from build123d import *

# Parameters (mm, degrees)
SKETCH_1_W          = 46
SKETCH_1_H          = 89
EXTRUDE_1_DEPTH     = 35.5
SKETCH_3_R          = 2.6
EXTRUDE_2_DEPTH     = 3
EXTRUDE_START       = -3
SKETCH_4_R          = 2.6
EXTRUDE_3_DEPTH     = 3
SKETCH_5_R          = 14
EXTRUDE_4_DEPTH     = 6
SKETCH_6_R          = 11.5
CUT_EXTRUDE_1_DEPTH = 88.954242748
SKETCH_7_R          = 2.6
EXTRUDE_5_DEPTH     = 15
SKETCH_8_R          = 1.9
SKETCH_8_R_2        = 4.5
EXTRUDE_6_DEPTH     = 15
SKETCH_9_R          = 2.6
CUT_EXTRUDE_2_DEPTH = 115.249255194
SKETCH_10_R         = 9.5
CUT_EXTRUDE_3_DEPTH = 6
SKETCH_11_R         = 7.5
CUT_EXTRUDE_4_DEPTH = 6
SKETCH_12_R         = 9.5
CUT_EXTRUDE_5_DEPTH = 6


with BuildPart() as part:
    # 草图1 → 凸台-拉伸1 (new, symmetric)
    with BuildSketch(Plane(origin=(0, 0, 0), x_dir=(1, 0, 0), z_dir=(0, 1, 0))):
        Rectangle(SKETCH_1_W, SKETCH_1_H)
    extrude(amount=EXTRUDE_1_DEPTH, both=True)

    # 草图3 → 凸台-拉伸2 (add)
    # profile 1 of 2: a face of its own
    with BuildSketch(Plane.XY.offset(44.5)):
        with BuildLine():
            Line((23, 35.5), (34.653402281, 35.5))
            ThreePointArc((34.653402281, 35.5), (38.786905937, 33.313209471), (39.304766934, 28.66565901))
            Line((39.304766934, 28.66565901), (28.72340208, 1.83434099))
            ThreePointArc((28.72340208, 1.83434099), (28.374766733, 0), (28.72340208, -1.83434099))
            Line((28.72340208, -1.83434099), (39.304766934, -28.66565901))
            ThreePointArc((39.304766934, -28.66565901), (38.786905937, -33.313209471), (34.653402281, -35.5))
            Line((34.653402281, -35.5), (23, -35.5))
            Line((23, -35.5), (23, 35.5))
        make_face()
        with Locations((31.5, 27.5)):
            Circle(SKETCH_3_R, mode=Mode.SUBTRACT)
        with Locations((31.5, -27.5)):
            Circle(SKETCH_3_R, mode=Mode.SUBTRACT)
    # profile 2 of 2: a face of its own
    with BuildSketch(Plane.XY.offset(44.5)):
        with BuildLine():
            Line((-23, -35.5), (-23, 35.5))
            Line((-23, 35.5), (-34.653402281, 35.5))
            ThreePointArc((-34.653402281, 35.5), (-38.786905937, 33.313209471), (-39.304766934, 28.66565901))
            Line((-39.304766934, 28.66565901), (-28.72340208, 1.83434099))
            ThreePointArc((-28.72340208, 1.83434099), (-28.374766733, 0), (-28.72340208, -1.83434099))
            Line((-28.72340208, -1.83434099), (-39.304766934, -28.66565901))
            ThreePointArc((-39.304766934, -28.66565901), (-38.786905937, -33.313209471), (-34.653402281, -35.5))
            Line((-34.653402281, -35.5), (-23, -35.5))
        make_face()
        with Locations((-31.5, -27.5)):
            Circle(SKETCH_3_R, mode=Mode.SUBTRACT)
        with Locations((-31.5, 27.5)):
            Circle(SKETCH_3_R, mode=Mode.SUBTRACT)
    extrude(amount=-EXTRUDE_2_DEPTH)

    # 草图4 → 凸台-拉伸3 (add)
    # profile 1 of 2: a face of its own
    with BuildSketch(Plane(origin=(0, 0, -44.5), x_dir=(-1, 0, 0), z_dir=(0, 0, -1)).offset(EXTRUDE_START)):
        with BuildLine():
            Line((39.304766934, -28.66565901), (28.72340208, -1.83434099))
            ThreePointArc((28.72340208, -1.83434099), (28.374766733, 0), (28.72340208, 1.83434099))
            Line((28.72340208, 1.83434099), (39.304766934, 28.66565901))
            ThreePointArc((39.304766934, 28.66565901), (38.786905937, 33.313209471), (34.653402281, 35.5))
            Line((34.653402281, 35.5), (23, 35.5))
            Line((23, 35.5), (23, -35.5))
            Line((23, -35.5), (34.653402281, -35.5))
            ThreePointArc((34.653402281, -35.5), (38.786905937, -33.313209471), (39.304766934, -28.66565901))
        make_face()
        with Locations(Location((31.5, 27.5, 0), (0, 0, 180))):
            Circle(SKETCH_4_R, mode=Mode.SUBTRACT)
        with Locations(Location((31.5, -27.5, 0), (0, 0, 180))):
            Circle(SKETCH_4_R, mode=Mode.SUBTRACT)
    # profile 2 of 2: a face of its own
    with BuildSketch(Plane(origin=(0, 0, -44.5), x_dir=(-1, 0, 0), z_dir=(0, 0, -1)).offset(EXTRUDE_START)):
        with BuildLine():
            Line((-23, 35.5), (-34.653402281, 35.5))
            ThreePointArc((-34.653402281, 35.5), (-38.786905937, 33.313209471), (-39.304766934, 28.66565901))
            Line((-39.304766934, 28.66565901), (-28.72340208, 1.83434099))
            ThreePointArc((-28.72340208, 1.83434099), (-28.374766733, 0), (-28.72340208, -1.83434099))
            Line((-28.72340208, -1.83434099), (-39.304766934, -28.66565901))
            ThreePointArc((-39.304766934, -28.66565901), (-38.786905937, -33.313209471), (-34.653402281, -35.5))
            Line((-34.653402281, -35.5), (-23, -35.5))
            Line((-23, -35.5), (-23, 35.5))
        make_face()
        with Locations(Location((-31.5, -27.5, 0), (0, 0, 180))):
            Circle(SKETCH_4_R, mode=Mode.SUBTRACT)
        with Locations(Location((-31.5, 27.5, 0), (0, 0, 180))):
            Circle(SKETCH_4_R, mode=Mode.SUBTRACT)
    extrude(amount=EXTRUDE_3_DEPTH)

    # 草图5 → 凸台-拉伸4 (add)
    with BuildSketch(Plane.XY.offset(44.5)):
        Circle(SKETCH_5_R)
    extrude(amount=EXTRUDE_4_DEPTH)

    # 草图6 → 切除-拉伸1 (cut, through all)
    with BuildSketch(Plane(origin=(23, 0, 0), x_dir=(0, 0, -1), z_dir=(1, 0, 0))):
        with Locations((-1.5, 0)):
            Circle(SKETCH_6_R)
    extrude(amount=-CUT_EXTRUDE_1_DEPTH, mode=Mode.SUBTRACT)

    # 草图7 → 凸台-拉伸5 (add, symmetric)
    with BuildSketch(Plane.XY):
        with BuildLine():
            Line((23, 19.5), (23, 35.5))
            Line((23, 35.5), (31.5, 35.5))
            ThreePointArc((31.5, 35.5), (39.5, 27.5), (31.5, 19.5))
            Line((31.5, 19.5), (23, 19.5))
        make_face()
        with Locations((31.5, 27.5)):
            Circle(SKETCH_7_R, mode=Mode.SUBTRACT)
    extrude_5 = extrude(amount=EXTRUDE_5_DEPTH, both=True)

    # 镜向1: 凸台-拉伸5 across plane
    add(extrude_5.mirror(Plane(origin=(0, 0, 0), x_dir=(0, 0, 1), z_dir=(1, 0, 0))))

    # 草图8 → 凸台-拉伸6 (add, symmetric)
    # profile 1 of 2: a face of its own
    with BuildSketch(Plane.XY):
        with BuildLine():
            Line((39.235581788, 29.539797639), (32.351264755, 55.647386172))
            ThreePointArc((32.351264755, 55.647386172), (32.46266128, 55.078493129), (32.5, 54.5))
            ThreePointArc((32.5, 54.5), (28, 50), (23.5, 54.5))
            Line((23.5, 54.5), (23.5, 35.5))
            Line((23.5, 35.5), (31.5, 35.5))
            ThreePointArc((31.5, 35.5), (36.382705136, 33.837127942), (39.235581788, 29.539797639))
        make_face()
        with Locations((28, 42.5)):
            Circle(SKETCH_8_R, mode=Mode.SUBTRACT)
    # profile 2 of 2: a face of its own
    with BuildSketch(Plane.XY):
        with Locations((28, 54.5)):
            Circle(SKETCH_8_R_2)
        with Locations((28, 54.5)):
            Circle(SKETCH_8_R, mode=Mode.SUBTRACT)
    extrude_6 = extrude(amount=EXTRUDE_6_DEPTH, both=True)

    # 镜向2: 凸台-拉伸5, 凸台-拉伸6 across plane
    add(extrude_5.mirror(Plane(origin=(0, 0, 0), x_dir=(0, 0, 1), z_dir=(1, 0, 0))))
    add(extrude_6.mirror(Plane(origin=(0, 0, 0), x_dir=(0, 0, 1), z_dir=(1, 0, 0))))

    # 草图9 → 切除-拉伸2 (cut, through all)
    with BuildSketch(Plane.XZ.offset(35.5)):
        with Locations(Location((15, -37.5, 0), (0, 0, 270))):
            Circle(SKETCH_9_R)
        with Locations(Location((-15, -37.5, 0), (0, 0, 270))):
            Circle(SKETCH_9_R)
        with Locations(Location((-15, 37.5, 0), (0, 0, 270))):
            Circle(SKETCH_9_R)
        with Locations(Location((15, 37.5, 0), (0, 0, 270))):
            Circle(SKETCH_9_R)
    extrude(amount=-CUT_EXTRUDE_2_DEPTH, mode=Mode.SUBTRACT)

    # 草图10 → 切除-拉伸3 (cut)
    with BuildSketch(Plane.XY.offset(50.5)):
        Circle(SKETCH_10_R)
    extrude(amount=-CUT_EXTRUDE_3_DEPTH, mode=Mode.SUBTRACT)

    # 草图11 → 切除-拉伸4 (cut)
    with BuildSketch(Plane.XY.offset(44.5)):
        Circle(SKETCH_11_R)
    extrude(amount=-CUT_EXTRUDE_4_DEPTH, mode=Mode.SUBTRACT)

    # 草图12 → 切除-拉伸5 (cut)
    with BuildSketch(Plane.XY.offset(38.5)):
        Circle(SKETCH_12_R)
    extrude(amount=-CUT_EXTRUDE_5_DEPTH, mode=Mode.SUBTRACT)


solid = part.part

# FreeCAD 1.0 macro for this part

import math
import FreeCAD as App
import Part
import Sketcher

V = App.Vector
Q = App.Units.Quantity

doc = App.newDocument("Part")
params = doc.addObject("Spreadsheet::Sheet", "Params")
for row, (alias, value) in enumerate([
    ("sketch1_width", "46 mm"),
    ("sketch1_height", "89 mm"),
    ("pad1_length", "71 mm"),
    ("sketch2_radius", "5 mm"),
    ("sketch2_diameter", "5.2 mm"),
    ("sketch2_height", "71 mm"),
    ("pad2_length", "3 mm"),
    ("sketch3_radius", "5 mm"),
    ("sketch3_diameter", "5.2 mm"),
    ("sketch3_height", "71 mm"),
    ("pad3_length", "3 mm"),
    ("sketch4_diameter", "28 mm"),
    ("pad4_length", "6 mm"),
    ("sketch5_diameter", "23 mm"),
    ("sketch6_radius", "8 mm"),
    ("sketch6_diameter", "5.2 mm"),
    ("sketch6_width", "8.5 mm"),
    ("pad5_length", "30 mm"),
    ("sketch7_radius", "8 mm"),
    ("sketch7_diameter", "3.8 mm"),
    ("sketch7_radius2", "4.5 mm"),
    ("sketch7_width", "8 mm"),
    ("sketch7_height", "19 mm"),
    ("pad6_length", "30 mm"),
    ("sketch8_diameter", "5.2 mm"),
    ("sketch9_diameter", "19 mm"),
    ("pocket3_length", "6 mm"),
    ("sketch10_diameter", "15 mm"),
    ("pocket4_length", "6 mm"),
    ("sketch11_diameter", "19 mm"),
    ("pocket5_length", "6 mm"),
], start=1):
    params.set(f"A{row}", alias)
    params.set(f"B{row}", "=" + value)
    params.setAlias(f"B{row}", alias)

body = doc.addObject("PartDesign::Body", "Body")

sketch1 = doc.addObject("Sketcher::SketchObject", "Sketch")
body.addObject(sketch1)
sketch1.AttachmentSupport = (doc.XZ_Plane, [""])
sketch1.MapMode = "FlatFace"
sketch1.addGeometry(Part.LineSegment(V(-23, -44, 0), V(-23, 44, 0)), False)
sketch1.addGeometry(Part.LineSegment(V(-23, 44, 0), V(23, 44, 0)), False)
sketch1.addGeometry(Part.LineSegment(V(23, 44, 0), V(23, -44, 0)), False)
sketch1.addGeometry(Part.LineSegment(V(23, -44, 0), V(-23, -44, 0)), False)
sketch1.addConstraint(Sketcher.Constraint("Coincident", 0, 2, 1, 1))
sketch1.addConstraint(Sketcher.Constraint("Coincident", 1, 2, 2, 1))
sketch1.addConstraint(Sketcher.Constraint("Coincident", 2, 2, 3, 1))
sketch1.addConstraint(Sketcher.Constraint("Coincident", 3, 2, 0, 1))
sketch1.addConstraint(Sketcher.Constraint("Vertical", 0))
sketch1.addConstraint(Sketcher.Constraint("Horizontal", 1))
sketch1.addConstraint(Sketcher.Constraint("Vertical", 2))
sketch1.addConstraint(Sketcher.Constraint("Horizontal", 3))
sketch1.addConstraint(Sketcher.Constraint("Symmetric", 0, 2, 2, 2, -1, 1))
sketch1.addConstraint(Sketcher.Constraint("DistanceX", 1, 1, 1, 2, Q("46 mm")))
sketch1.addConstraint(Sketcher.Constraint("DistanceY", 0, 1, 0, 2, Q("89 mm")))
sketch1.setExpression("Constraints[9]", "Params.sketch1_width")
sketch1.setExpression("Constraints[10]", "Params.sketch1_height")
pad1 = doc.addObject("PartDesign::Pad", "Pad")
body.addObject(pad1)
pad1.Profile = sketch1
pad1.setExpression("Length", "Params.pad1_length")
pad1.Midplane = True

sketch2 = doc.addObject("Sketcher::SketchObject", "Sketch001")
body.addObject(sketch2)
sketch2.AttachmentSupport = (doc.XY_Plane, [""])
sketch2.MapMode = "FlatFace"
sketch2.AttachmentOffset = App.Placement(V(0, 0, 44.5), App.Rotation())
sketch2.addGeometry(Part.LineSegment(V(34.7, 35.5, 0), V(23, 35.5, 0)), False)
sketch2.addGeometry(Part.LineSegment(V(23, 35.5, 0), V(23, -35.5, 0)), False)
sketch2.addGeometry(Part.LineSegment(V(23, -35.5, 0), V(34.7, -35.5, 0)), False)
sketch2.addGeometry(Part.ArcOfCircle(Part.Circle(V(34.7, -30.5, 0), V(0, 0, 1), 5), math.radians(-90), math.radians(22)), False)
sketch2.addGeometry(Part.LineSegment(V(39.3, -28.7, 0), V(28.7, -1.8, 0)), False)
sketch2.addGeometry(Part.ArcOfCircle(Part.Circle(V(33.4, 0, 0), V(0, 0, 1), 5), math.radians(158), math.radians(202)), False)
sketch2.addGeometry(Part.LineSegment(V(28.7, 1.8, 0), V(39.3, 28.7, 0)), False)
sketch2.addGeometry(Part.ArcOfCircle(Part.Circle(V(34.7, 30.5, 0), V(0, 0, 1), 5), math.radians(-22), math.radians(90)), False)
sketch2.addGeometry(Part.Circle(V(31.5, -27.5, 0), V(0, 0, 1), 2.6), False)
sketch2.addGeometry(Part.Circle(V(31.5, 27.5, 0), V(0, 0, 1), 2.6), False)
sketch2.addGeometry(Part.LineSegment(V(-23, -35.5, 0), V(-23, 35.5, 0)), False)
sketch2.addGeometry(Part.LineSegment(V(-23, 35.5, 0), V(-34.7, 35.5, 0)), False)
sketch2.addGeometry(Part.ArcOfCircle(Part.Circle(V(-34.7, 30.5, 0), V(0, 0, 1), 5), math.radians(90), math.radians(202)), False)
sketch2.addGeometry(Part.LineSegment(V(-39.3, 28.7, 0), V(-28.7, 1.8, 0)), False)
sketch2.addGeometry(Part.ArcOfCircle(Part.Circle(V(-33.4, 0, 0), V(0, 0, 1), 5), math.radians(-22), math.radians(22)), False)
sketch2.addGeometry(Part.LineSegment(V(-28.7, -1.8, 0), V(-39.3, -28.7, 0)), False)
sketch2.addGeometry(Part.ArcOfCircle(Part.Circle(V(-34.7, -30.5, 0), V(0, 0, 1), 5), math.radians(158), math.radians(270)), False)
sketch2.addGeometry(Part.LineSegment(V(-34.7, -35.5, 0), V(-23, -35.5, 0)), False)
sketch2.addGeometry(Part.Circle(V(-31.5, -27.5, 0), V(0, 0, 1), 2.6), False)
sketch2.addGeometry(Part.Circle(V(-31.5, 27.5, 0), V(0, 0, 1), 2.6), False)
sketch2.addConstraint(Sketcher.Constraint("Coincident", 0, 2, 1, 1))
sketch2.addConstraint(Sketcher.Constraint("Coincident", 1, 2, 2, 1))
sketch2.addConstraint(Sketcher.Constraint("Tangent", 2, 2, 3, 1))
sketch2.addConstraint(Sketcher.Constraint("Tangent", 3, 2, 4, 1))
sketch2.addConstraint(Sketcher.Constraint("Tangent", 4, 2, 5, 2))
sketch2.addConstraint(Sketcher.Constraint("Tangent", 5, 1, 6, 1))
sketch2.addConstraint(Sketcher.Constraint("Tangent", 6, 2, 7, 1))
sketch2.addConstraint(Sketcher.Constraint("Tangent", 7, 2, 0, 1))
sketch2.addConstraint(Sketcher.Constraint("Coincident", 10, 2, 11, 1))
sketch2.addConstraint(Sketcher.Constraint("Tangent", 11, 2, 12, 1))
sketch2.addConstraint(Sketcher.Constraint("Tangent", 12, 2, 13, 1))
sketch2.addConstraint(Sketcher.Constraint("Tangent", 13, 2, 14, 2))
sketch2.addConstraint(Sketcher.Constraint("Tangent", 14, 1, 15, 1))
sketch2.addConstraint(Sketcher.Constraint("Tangent", 15, 2, 16, 1))
sketch2.addConstraint(Sketcher.Constraint("Tangent", 16, 2, 17, 1))
sketch2.addConstraint(Sketcher.Constraint("Coincident", 17, 2, 10, 1))
sketch2.addConstraint(Sketcher.Constraint("Horizontal", 0))
sketch2.addConstraint(Sketcher.Constraint("Vertical", 1))
sketch2.addConstraint(Sketcher.Constraint("Horizontal", 2))
sketch2.addConstraint(Sketcher.Constraint("Vertical", 10))
sketch2.addConstraint(Sketcher.Constraint("Horizontal", 11))
sketch2.addConstraint(Sketcher.Constraint("Horizontal", 17))
sketch2.addConstraint(Sketcher.Constraint("Equal", 3, 5))
sketch2.addConstraint(Sketcher.Constraint("Equal", 5, 7))
sketch2.addConstraint(Sketcher.Constraint("Equal", 8, 9))
sketch2.addConstraint(Sketcher.Constraint("Equal", 7, 12))
sketch2.addConstraint(Sketcher.Constraint("Equal", 12, 14))
sketch2.addConstraint(Sketcher.Constraint("Equal", 14, 16))
sketch2.addConstraint(Sketcher.Constraint("Equal", 9, 18))
sketch2.addConstraint(Sketcher.Constraint("Equal", 18, 19))
sketch2.addConstraint(Sketcher.Constraint("Symmetric", 3, 3, 12, 3, -1, 1))
sketch2.addConstraint(Sketcher.Constraint("Symmetric", 5, 3, 14, 3, -1, 1))
sketch2.addConstraint(Sketcher.Constraint("Symmetric", 7, 3, 16, 3, -1, 1))
sketch2.addConstraint(Sketcher.Constraint("Symmetric", 9, 3, 18, 3, -1, 1))
sketch2.addConstraint(Sketcher.Constraint("Symmetric", 8, 3, 19, 3, -1, 1))
sketch2.addConstraint(Sketcher.Constraint("Symmetric", 7, 3, 12, 3, -2))
sketch2.addConstraint(Sketcher.Constraint("Symmetric", 8, 3, 18, 3, -2))
sketch2.addConstraint(Sketcher.Constraint("PointOnObject", 5, 3, -1))
sketch2.addConstraint(Sketcher.Constraint("Equal", 2, 11))
sketch2.addConstraint(Sketcher.Constraint("Radius", 3, Q("5 mm")))
sketch2.addConstraint(Sketcher.Constraint("Diameter", 8, Q("5.2 mm")))
sketch2.addConstraint(Sketcher.Constraint("DistanceY", 1, 2, 1, 1, Q("71 mm")))
sketch2.addConstraint(Sketcher.Constraint("DistanceX", -1, 1, 0, 2, Q("23 mm")))
sketch2.addConstraint(Sketcher.Constraint("DistanceY", 3, 3, 8, 3, Q("3 mm")))
sketch2.addConstraint(Sketcher.Constraint("DistanceX", 18, 3, 8, 3, Q("63 mm")))
sketch2.addConstraint(Sketcher.Constraint("DistanceX", 5, 3, 3, 2, Q("5.93 mm")))
sketch2.addConstraint(Sketcher.Constraint("DistanceX", 0, 2, 0, 1, Q("11.653402 mm")))
sketch2.setExpression("Constraints[39]", "Params.sketch2_radius")
sketch2.setExpression("Constraints[40]", "Params.sketch2_diameter")
sketch2.setExpression("Constraints[41]", "Params.sketch2_height")
pad2 = doc.addObject("PartDesign::Pad", "Pad001")
body.addObject(pad2)
pad2.Profile = sketch2
pad2.setExpression("Length", "Params.pad2_length")
pad2.Reversed = True

sketch3 = doc.addObject("Sketcher::SketchObject", "Sketch002")
body.addObject(sketch3)
sketch3.AttachmentSupport = (doc.XY_Plane, [""])
sketch3.MapMode = "FlatFace"
sketch3.AttachmentOffset = App.Placement(V(0, 0, -41.5), App.Rotation())
sketch3.addGeometry(Part.LineSegment(V(-39.3, -28.7, 0), V(-28.7, -1.8, 0)), False)
sketch3.addGeometry(Part.ArcOfCircle(Part.Circle(V(-33.4, 0, 0), V(0, 0, 1), 5), math.radians(-22), math.radians(22)), False)
sketch3.addGeometry(Part.LineSegment(V(-28.7, 1.8, 0), V(-39.3, 28.7, 0)), False)
sketch3.addGeometry(Part.ArcOfCircle(Part.Circle(V(-34.7, 30.5, 0), V(0, 0, 1), 5), math.radians(90), math.radians(202)), False)
sketch3.addGeometry(Part.LineSegment(V(-34.7, 35.5, 0), V(-23, 35.5, 0)), False)
sketch3.addGeometry(Part.LineSegment(V(-23, 35.5, 0), V(-23, -35.5, 0)), False)
sketch3.addGeometry(Part.LineSegment(V(-23, -35.5, 0), V(-34.7, -35.5, 0)), False)
sketch3.addGeometry(Part.ArcOfCircle(Part.Circle(V(-34.7, -30.5, 0), V(0, 0, 1), 5), math.radians(158), math.radians(270)), False)
sketch3.addGeometry(Part.Circle(V(-31.5, -27.5, 0), V(0, 0, 1), 2.6), False)
sketch3.addGeometry(Part.Circle(V(-31.5, 27.5, 0), V(0, 0, 1), 2.6), False)
sketch3.addGeometry(Part.LineSegment(V(23, 35.5, 0), V(34.7, 35.5, 0)), False)
sketch3.addGeometry(Part.ArcOfCircle(Part.Circle(V(34.7, 30.5, 0), V(0, 0, 1), 5), math.radians(-22), math.radians(90)), False)
sketch3.addGeometry(Part.LineSegment(V(39.3, 28.7, 0), V(28.7, 1.8, 0)), False)
sketch3.addGeometry(Part.ArcOfCircle(Part.Circle(V(33.4, 0, 0), V(0, 0, 1), 5), math.radians(158), math.radians(202)), False)
sketch3.addGeometry(Part.LineSegment(V(28.7, -1.8, 0), V(39.3, -28.7, 0)), False)
sketch3.addGeometry(Part.ArcOfCircle(Part.Circle(V(34.7, -30.5, 0), V(0, 0, 1), 5), math.radians(-90), math.radians(22)), False)
sketch3.addGeometry(Part.LineSegment(V(34.7, -35.5, 0), V(23, -35.5, 0)), False)
sketch3.addGeometry(Part.LineSegment(V(23, -35.5, 0), V(23, 35.5, 0)), False)
sketch3.addGeometry(Part.Circle(V(31.5, -27.5, 0), V(0, 0, 1), 2.6), False)
sketch3.addGeometry(Part.Circle(V(31.5, 27.5, 0), V(0, 0, 1), 2.6), False)
sketch3.addConstraint(Sketcher.Constraint("Tangent", 0, 2, 1, 1))
sketch3.addConstraint(Sketcher.Constraint("Tangent", 1, 2, 2, 1))
sketch3.addConstraint(Sketcher.Constraint("Tangent", 2, 2, 3, 2))
sketch3.addConstraint(Sketcher.Constraint("Tangent", 3, 1, 4, 1))
sketch3.addConstraint(Sketcher.Constraint("Coincident", 4, 2, 5, 1))
sketch3.addConstraint(Sketcher.Constraint("Coincident", 5, 2, 6, 1))
sketch3.addConstraint(Sketcher.Constraint("Tangent", 6, 2, 7, 2))
sketch3.addConstraint(Sketcher.Constraint("Tangent", 7, 1, 0, 1))
sketch3.addConstraint(Sketcher.Constraint("Tangent", 10, 2, 11, 2))
sketch3.addConstraint(Sketcher.Constraint("Tangent", 11, 1, 12, 1))
sketch3.addConstraint(Sketcher.Constraint("Tangent", 12, 2, 13, 1))
sketch3.addConstraint(Sketcher.Constraint("Tangent", 13, 2, 14, 1))
sketch3.addConstraint(Sketcher.Constraint("Tangent", 14, 2, 15, 2))
sketch3.addConstraint(Sketcher.Constraint("Tangent", 15, 1, 16, 1))
sketch3.addConstraint(Sketcher.Constraint("Coincident", 16, 2, 17, 1))
sketch3.addConstraint(Sketcher.Constraint("Coincident", 17, 2, 10, 1))
sketch3.addConstraint(Sketcher.Constraint("Horizontal", 4))
sketch3.addConstraint(Sketcher.Constraint("Vertical", 5))
sketch3.addConstraint(Sketcher.Constraint("Horizontal", 6))
sketch3.addConstraint(Sketcher.Constraint("Horizontal", 10))
sketch3.addConstraint(Sketcher.Constraint("Horizontal", 16))
sketch3.addConstraint(Sketcher.Constraint("Vertical", 17))
sketch3.addConstraint(Sketcher.Constraint("Equal", 1, 3))
sketch3.addConstraint(Sketcher.Constraint("Equal", 3, 7))
sketch3.addConstraint(Sketcher.Constraint("Equal", 8, 9))
sketch3.addConstraint(Sketcher.Constraint("Equal", 7, 11))
sketch3.addConstraint(Sketcher.Constraint("Equal", 11, 13))
sketch3.addConstraint(Sketcher.Constraint("Equal", 13, 15))
sketch3.addConstraint(Sketcher.Constraint("Equal", 9, 18))
sketch3.addConstraint(Sketcher.Constraint("Equal", 18, 19))
sketch3.addConstraint(Sketcher.Constraint("Symmetric", 7, 3, 11, 3, -1, 1))
sketch3.addConstraint(Sketcher.Constraint("Symmetric", 1, 3, 13, 3, -1, 1))
sketch3.addConstraint(Sketcher.Constraint("Symmetric", 3, 3, 15, 3, -1, 1))
sketch3.addConstraint(Sketcher.Constraint("Symmetric", 9, 3, 18, 3, -1, 1))
sketch3.addConstraint(Sketcher.Constraint("Symmetric", 8, 3, 19, 3, -1, 1))
sketch3.addConstraint(Sketcher.Constraint("Symmetric", 3, 3, 11, 3, -2))
sketch3.addConstraint(Sketcher.Constraint("Symmetric", 8, 3, 18, 3, -2))
sketch3.addConstraint(Sketcher.Constraint("PointOnObject", 1, 3, -1))
sketch3.addConstraint(Sketcher.Constraint("Equal", 6, 10))
sketch3.addConstraint(Sketcher.Constraint("Radius", 1, Q("5 mm")))
sketch3.addConstraint(Sketcher.Constraint("Diameter", 8, Q("5.2 mm")))
sketch3.addConstraint(Sketcher.Constraint("DistanceY", 5, 2, 5, 1, Q("71 mm")))
sketch3.addConstraint(Sketcher.Constraint("DistanceX", 4, 2, -1, 1, Q("23 mm")))
sketch3.addConstraint(Sketcher.Constraint("DistanceY", 7, 3, 8, 3, Q("3 mm")))
sketch3.addConstraint(Sketcher.Constraint("DistanceX", 8, 3, 18, 3, Q("63 mm")))
sketch3.addConstraint(Sketcher.Constraint("DistanceX", 7, 3, 0, 2, Q("5.93 mm")))
sketch3.addConstraint(Sketcher.Constraint("DistanceX", 4, 1, 4, 2, Q("11.653402 mm")))
sketch3.setExpression("Constraints[39]", "Params.sketch3_radius")
sketch3.setExpression("Constraints[40]", "Params.sketch3_diameter")
sketch3.setExpression("Constraints[41]", "Params.sketch3_height")
pad3 = doc.addObject("PartDesign::Pad", "Pad002")
body.addObject(pad3)
pad3.Profile = sketch3
pad3.setExpression("Length", "Params.pad3_length")
pad3.Reversed = True

sketch4 = doc.addObject("Sketcher::SketchObject", "Sketch003")
body.addObject(sketch4)
sketch4.AttachmentSupport = (doc.XY_Plane, [""])
sketch4.MapMode = "FlatFace"
sketch4.AttachmentOffset = App.Placement(V(0, 0, 44.5), App.Rotation())
sketch4.addGeometry(Part.Circle(V(0, 0, 0), V(0, 0, 1), 14), False)
sketch4.addConstraint(Sketcher.Constraint("Coincident", 0, 3, -1, 1))
sketch4.addConstraint(Sketcher.Constraint("Diameter", 0, Q("28 mm")))
sketch4.setExpression("Constraints[1]", "Params.sketch4_diameter")
pad4 = doc.addObject("PartDesign::Pad", "Pad003")
body.addObject(pad4)
pad4.Profile = sketch4
pad4.setExpression("Length", "Params.pad4_length")

sketch5 = doc.addObject("Sketcher::SketchObject", "Sketch004")
body.addObject(sketch5)
sketch5.AttachmentSupport = (doc.YZ_Plane, [""])
sketch5.MapMode = "FlatFace"
sketch5.AttachmentOffset = App.Placement(V(0, 0, 23), App.Rotation())
sketch5.addGeometry(Part.Circle(V(0, 2, 0), V(0, 0, 1), 12), False)
sketch5.addConstraint(Sketcher.Constraint("PointOnObject", 0, 3, -2))
sketch5.addConstraint(Sketcher.Constraint("Diameter", 0, Q("23 mm")))
sketch5.addConstraint(Sketcher.Constraint("DistanceY", -1, 1, 0, 3, Q("1.5 mm")))
sketch5.setExpression("Constraints[1]", "Params.sketch5_diameter")
pocket1 = doc.addObject("PartDesign::Pocket", "Pocket")
body.addObject(pocket1)
pocket1.Profile = sketch5
pocket1.Type = "ThroughAll"

sketch6 = doc.addObject("Sketcher::SketchObject", "Sketch005")
body.addObject(sketch6)
sketch6.AttachmentSupport = (doc.XY_Plane, [""])
sketch6.MapMode = "FlatFace"
sketch6.addGeometry(Part.LineSegment(V(23, 35.5, 0), V(23, 19.5, 0)), False)
sketch6.addGeometry(Part.LineSegment(V(23, 19.5, 0), V(31.5, 19.5, 0)), False)
sketch6.addGeometry(Part.ArcOfCircle(Part.Circle(V(31.5, 27.5, 0), V(0, 0, 1), 8), math.radians(-90), math.radians(90)), False)
sketch6.addGeometry(Part.LineSegment(V(31.5, 35.5, 0), V(23, 35.5, 0)), False)
sketch6.addGeometry(Part.Circle(V(31.5, 27.5, 0), V(0, 0, 1), 2.6), False)
sketch6.addConstraint(Sketcher.Constraint("Coincident", 0, 2, 1, 1))
sketch6.addConstraint(Sketcher.Constraint("Tangent", 1, 2, 2, 1))
sketch6.addConstraint(Sketcher.Constraint("Tangent", 2, 2, 3, 1))
sketch6.addConstraint(Sketcher.Constraint("Coincident", 3, 2, 0, 1))
sketch6.addConstraint(Sketcher.Constraint("Vertical", 0))
sketch6.addConstraint(Sketcher.Constraint("Horizontal", 1))
sketch6.addConstraint(Sketcher.Constraint("Horizontal", 3))
sketch6.addConstraint(Sketcher.Constraint("Coincident", 4, 3, 2, 3))
sketch6.addConstraint(Sketcher.Constraint("Radius", 2, Q("8 mm")))
sketch6.addConstraint(Sketcher.Constraint("Diameter", 4, Q("5.2 mm")))
sketch6.addConstraint(Sketcher.Constraint("DistanceX", 1, 1, 1, 2, Q("8.5 mm")))
sketch6.addConstraint(Sketcher.Constraint("DistanceX", -1, 1, 0, 2, Q("23 mm")))
sketch6.addConstraint(Sketcher.Constraint("DistanceY", -1, 1, 2, 3, Q("27.5 mm")))
sketch6.setExpression("Constraints[8]", "Params.sketch6_radius")
sketch6.setExpression("Constraints[9]", "Params.sketch6_diameter")
sketch6.setExpression("Constraints[10]", "Params.sketch6_width")
pad5 = doc.addObject("PartDesign::Pad", "Pad004")
body.addObject(pad5)
pad5.Profile = sketch6
pad5.setExpression("Length", "Params.pad5_length")
pad5.Midplane = True
doc.recompute()

mirrored = doc.addObject("PartDesign::Mirrored", "Mirrored")
body.addObject(mirrored)
mirrored.Originals = [pad5]
mirrored.MirrorPlane = (doc.YZ_Plane, [""])
body.Tip = mirrored

sketch7 = doc.addObject("Sketcher::SketchObject", "Sketch006")
body.addObject(sketch7)
sketch7.AttachmentSupport = (doc.XY_Plane, [""])
sketch7.MapMode = "FlatFace"
sketch7.addGeometry(Part.LineSegment(V(39.2, 29.5, 0), V(32.4, 55.6, 0)), False)
sketch7.addGeometry(Part.ArcOfCircle(Part.Circle(V(28, 54.5, 0), V(0, 0, 1), 4.5), math.radians(15), math.radians(180)), False)
sketch7.addGeometry(Part.LineSegment(V(23.5, 54.5, 0), V(23.5, 35.5, 0)), False)
sketch7.addGeometry(Part.LineSegment(V(23.5, 35.5, 0), V(31.5, 35.5, 0)), False)
sketch7.addGeometry(Part.ArcOfCircle(Part.Circle(V(31.5, 27.5, 0), V(0, 0, 1), 8), math.radians(15), math.radians(90)), False)
sketch7.addGeometry(Part.Circle(V(28, 42.5, 0), V(0, 0, 1), 1.9), False)
sketch7.addGeometry(Part.Circle(V(28, 54.5, 0), V(0, 0, 1), 1.9), False)
sketch7.addConstraint(Sketcher.Constraint("Tangent", 0, 2, 1, 1))
sketch7.addConstraint(Sketcher.Constraint("Tangent", 1, 2, 2, 1))
sketch7.addConstraint(Sketcher.Constraint("Coincident", 2, 2, 3, 1))
sketch7.addConstraint(Sketcher.Constraint("Tangent", 3, 2, 4, 2))
sketch7.addConstraint(Sketcher.Constraint("Tangent", 4, 1, 0, 1))
sketch7.addConstraint(Sketcher.Constraint("Vertical", 2))
sketch7.addConstraint(Sketcher.Constraint("Horizontal", 3))
sketch7.addConstraint(Sketcher.Constraint("Coincident", 6, 3, 1, 3))
sketch7.addConstraint(Sketcher.Constraint("Equal", 5, 6))
sketch7.addConstraint(Sketcher.Constraint("Vertical", 1, 3, 5, 3))
sketch7.addConstraint(Sketcher.Constraint("Radius", 4, Q("8 mm")))
sketch7.addConstraint(Sketcher.Constraint("Diameter", 5, Q("3.8 mm")))
sketch7.addConstraint(Sketcher.Constraint("Radius", 1, Q("4.5 mm")))
sketch7.addConstraint(Sketcher.Constraint("DistanceX", 3, 1, 3, 2, Q("8 mm")))
sketch7.addConstraint(Sketcher.Constraint("DistanceY", 2, 2, 2, 1, Q("19 mm")))
sketch7.addConstraint(Sketcher.Constraint("DistanceX", -1, 1, 1, 3, Q("28 mm")))
sketch7.addConstraint(Sketcher.Constraint("DistanceY", 5, 3, 1, 3, Q("12 mm")))
sketch7.addConstraint(Sketcher.Constraint("DistanceY", -1, 1, 1, 3, Q("54.5 mm")))
sketch7.setExpression("Constraints[10]", "Params.sketch7_radius")
sketch7.setExpression("Constraints[11]", "Params.sketch7_diameter")
sketch7.setExpression("Constraints[12]", "Params.sketch7_radius2")
sketch7.setExpression("Constraints[13]", "Params.sketch7_width")
sketch7.setExpression("Constraints[14]", "Params.sketch7_height")
pad6 = doc.addObject("PartDesign::Pad", "Pad005")
body.addObject(pad6)
pad6.Profile = sketch7
pad6.setExpression("Length", "Params.pad6_length")
pad6.Midplane = True
doc.recompute()

mirrored2 = doc.addObject("PartDesign::Mirrored", "Mirrored001")
body.addObject(mirrored2)
mirrored2.Originals = [pad5, pad6]
mirrored2.MirrorPlane = (doc.YZ_Plane, [""])
body.Tip = mirrored2

sketch8 = doc.addObject("Sketcher::SketchObject", "Sketch007")
body.addObject(sketch8)
sketch8.AttachmentSupport = (doc.XZ_Plane, [""])
sketch8.MapMode = "FlatFace"
sketch8.AttachmentOffset = App.Placement(V(0, 0, 35.5), App.Rotation())
sketch8.addGeometry(Part.Circle(V(15, -37.5, 0), V(0, 0, 1), 2.6), False)
sketch8.addGeometry(Part.Circle(V(-15, -37.5, 0), V(0, 0, 1), 2.6), False)
sketch8.addGeometry(Part.Circle(V(-15, 37.5, 0), V(0, 0, 1), 2.6), False)
sketch8.addGeometry(Part.Circle(V(15, 37.5, 0), V(0, 0, 1), 2.6), False)
sketch8.addConstraint(Sketcher.Constraint("Equal", 0, 1))
sketch8.addConstraint(Sketcher.Constraint("Equal", 1, 2))
sketch8.addConstraint(Sketcher.Constraint("Equal", 2, 3))
sketch8.addConstraint(Sketcher.Constraint("Symmetric", 0, 3, 2, 3, -1, 1))
sketch8.addConstraint(Sketcher.Constraint("Symmetric", 1, 3, 3, 3, -1, 1))
sketch8.addConstraint(Sketcher.Constraint("Symmetric", 0, 3, 1, 3, -2))
sketch8.addConstraint(Sketcher.Constraint("Diameter", 0, Q("5.2 mm")))
sketch8.addConstraint(Sketcher.Constraint("DistanceX", -1, 1, 0, 3, Q("15 mm")))
sketch8.addConstraint(Sketcher.Constraint("DistanceY", 1, 3, 2, 3, Q("75 mm")))
sketch8.setExpression("Constraints[6]", "Params.sketch8_diameter")
pocket2 = doc.addObject("PartDesign::Pocket", "Pocket001")
body.addObject(pocket2)
pocket2.Profile = sketch8
pocket2.Type = "ThroughAll"

sketch9 = doc.addObject("Sketcher::SketchObject", "Sketch008")
body.addObject(sketch9)
sketch9.AttachmentSupport = (doc.XY_Plane, [""])
sketch9.MapMode = "FlatFace"
sketch9.AttachmentOffset = App.Placement(V(0, 0, 50.5), App.Rotation())
sketch9.addGeometry(Part.Circle(V(0, 0, 0), V(0, 0, 1), 10), False)
sketch9.addConstraint(Sketcher.Constraint("Coincident", 0, 3, -1, 1))
sketch9.addConstraint(Sketcher.Constraint("Diameter", 0, Q("19 mm")))
sketch9.setExpression("Constraints[1]", "Params.sketch9_diameter")
pocket3 = doc.addObject("PartDesign::Pocket", "Pocket002")
body.addObject(pocket3)
pocket3.Profile = sketch9
pocket3.setExpression("Length", "Params.pocket3_length")

sketch10 = doc.addObject("Sketcher::SketchObject", "Sketch009")
body.addObject(sketch10)
sketch10.AttachmentSupport = (doc.XY_Plane, [""])
sketch10.MapMode = "FlatFace"
sketch10.AttachmentOffset = App.Placement(V(0, 0, 44.5), App.Rotation())
sketch10.addGeometry(Part.Circle(V(0, 0, 0), V(0, 0, 1), 8), False)
sketch10.addConstraint(Sketcher.Constraint("Coincident", 0, 3, -1, 1))
sketch10.addConstraint(Sketcher.Constraint("Diameter", 0, Q("15 mm")))
sketch10.setExpression("Constraints[1]", "Params.sketch10_diameter")
pocket4 = doc.addObject("PartDesign::Pocket", "Pocket003")
body.addObject(pocket4)
pocket4.Profile = sketch10
pocket4.setExpression("Length", "Params.pocket4_length")

sketch11 = doc.addObject("Sketcher::SketchObject", "Sketch010")
body.addObject(sketch11)
sketch11.AttachmentSupport = (doc.XY_Plane, [""])
sketch11.MapMode = "FlatFace"
sketch11.AttachmentOffset = App.Placement(V(0, 0, 38.5), App.Rotation())
sketch11.addGeometry(Part.Circle(V(0, 0, 0), V(0, 0, 1), 10), False)
sketch11.addConstraint(Sketcher.Constraint("Coincident", 0, 3, -1, 1))
sketch11.addConstraint(Sketcher.Constraint("Diameter", 0, Q("19 mm")))
sketch11.setExpression("Constraints[1]", "Params.sketch11_diameter")
pocket5 = doc.addObject("PartDesign::Pocket", "Pocket004")
body.addObject(pocket5)
pocket5.Profile = sketch11
pocket5.setExpression("Length", "Params.pocket5_length")

doc.recompute()
